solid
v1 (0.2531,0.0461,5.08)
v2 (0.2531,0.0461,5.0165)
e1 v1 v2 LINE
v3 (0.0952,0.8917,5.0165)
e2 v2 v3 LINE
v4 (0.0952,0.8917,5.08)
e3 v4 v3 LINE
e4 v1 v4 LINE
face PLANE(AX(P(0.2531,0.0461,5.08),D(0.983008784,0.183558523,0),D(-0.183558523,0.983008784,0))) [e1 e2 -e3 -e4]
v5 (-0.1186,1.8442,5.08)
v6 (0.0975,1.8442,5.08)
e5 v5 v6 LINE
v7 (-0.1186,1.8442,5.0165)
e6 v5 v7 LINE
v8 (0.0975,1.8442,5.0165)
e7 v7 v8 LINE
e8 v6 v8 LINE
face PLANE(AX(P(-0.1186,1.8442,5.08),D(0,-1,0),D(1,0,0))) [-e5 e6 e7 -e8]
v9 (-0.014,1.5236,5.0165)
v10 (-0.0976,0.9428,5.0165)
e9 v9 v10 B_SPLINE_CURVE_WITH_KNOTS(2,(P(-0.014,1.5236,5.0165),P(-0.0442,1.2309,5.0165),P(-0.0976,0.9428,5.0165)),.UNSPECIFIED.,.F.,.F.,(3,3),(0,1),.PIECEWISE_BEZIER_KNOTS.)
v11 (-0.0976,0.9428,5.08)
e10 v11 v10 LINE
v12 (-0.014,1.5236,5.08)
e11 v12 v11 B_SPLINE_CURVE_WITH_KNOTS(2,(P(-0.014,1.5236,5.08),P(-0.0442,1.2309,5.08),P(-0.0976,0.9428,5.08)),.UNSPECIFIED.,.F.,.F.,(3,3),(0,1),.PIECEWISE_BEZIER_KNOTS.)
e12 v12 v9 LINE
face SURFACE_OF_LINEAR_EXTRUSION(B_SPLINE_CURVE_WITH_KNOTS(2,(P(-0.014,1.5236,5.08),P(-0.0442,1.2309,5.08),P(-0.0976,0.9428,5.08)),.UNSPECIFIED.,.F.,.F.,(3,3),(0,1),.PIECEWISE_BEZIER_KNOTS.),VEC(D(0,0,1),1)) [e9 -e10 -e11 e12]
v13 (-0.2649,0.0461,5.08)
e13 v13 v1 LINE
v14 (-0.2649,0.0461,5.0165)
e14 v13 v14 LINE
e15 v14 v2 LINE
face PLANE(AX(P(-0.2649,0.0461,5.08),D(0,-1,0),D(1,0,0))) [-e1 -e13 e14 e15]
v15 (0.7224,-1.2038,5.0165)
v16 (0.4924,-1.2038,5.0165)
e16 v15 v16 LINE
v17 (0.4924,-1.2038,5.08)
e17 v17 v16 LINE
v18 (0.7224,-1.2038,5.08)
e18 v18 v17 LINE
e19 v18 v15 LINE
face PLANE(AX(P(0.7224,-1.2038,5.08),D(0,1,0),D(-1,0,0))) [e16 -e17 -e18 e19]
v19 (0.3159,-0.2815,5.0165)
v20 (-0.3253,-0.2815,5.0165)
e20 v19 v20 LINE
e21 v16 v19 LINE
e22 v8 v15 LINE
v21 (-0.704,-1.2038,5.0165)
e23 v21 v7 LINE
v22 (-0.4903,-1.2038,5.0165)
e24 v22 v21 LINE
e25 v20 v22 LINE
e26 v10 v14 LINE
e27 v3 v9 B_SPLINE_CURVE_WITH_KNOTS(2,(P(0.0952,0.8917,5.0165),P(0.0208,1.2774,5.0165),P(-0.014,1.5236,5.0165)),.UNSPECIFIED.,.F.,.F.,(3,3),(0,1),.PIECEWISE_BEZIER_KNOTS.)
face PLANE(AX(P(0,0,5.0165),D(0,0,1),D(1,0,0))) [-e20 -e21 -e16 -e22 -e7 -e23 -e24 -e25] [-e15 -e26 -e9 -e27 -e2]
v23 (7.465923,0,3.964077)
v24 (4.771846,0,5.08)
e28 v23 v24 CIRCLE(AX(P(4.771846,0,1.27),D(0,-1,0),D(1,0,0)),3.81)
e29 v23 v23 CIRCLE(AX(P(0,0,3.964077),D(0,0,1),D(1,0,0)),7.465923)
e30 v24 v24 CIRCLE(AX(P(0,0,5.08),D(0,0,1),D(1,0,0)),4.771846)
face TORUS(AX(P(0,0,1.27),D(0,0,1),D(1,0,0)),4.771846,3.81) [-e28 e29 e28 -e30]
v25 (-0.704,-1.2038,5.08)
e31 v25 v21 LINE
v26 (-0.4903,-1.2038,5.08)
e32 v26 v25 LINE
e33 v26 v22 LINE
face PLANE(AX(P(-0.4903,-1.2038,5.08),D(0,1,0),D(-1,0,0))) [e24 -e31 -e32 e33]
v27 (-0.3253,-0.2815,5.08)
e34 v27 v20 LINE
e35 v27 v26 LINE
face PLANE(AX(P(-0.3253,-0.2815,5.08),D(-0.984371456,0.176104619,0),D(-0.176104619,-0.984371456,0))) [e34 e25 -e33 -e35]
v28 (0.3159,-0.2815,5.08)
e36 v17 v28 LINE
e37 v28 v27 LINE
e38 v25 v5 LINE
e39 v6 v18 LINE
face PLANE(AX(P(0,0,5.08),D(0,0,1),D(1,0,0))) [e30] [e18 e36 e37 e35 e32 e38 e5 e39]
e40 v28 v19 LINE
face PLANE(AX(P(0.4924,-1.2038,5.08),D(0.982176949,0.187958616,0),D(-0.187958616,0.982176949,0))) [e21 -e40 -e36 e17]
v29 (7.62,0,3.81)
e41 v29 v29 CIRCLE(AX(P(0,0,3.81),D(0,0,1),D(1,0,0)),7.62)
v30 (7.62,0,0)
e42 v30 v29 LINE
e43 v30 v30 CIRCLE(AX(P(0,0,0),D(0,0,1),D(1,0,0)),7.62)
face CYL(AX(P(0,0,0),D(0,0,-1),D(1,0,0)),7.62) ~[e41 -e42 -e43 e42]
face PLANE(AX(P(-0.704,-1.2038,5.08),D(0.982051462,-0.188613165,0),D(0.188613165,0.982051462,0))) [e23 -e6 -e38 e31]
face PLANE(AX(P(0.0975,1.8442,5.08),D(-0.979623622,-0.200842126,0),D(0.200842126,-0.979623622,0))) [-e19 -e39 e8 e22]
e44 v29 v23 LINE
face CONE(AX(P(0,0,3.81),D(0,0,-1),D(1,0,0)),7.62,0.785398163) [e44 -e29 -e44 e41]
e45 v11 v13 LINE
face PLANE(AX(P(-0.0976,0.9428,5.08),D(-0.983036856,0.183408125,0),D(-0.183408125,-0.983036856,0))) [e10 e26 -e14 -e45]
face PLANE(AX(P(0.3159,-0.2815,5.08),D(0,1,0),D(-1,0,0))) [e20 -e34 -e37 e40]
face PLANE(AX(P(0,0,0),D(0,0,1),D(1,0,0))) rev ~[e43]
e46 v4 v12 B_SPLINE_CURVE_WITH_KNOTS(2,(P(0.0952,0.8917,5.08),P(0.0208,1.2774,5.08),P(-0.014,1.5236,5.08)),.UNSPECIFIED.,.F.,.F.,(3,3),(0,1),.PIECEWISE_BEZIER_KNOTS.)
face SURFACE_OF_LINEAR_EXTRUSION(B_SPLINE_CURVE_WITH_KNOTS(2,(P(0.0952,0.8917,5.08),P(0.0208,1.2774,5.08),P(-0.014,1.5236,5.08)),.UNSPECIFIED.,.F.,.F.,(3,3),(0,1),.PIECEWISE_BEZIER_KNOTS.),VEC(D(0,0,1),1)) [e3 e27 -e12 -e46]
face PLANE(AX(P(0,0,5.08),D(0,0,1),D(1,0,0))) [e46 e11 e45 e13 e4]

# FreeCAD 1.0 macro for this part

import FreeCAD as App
import Part
import Sketcher
Q = App.Units.Quantity


def edges_at(feature, points):
    """Names of the edges that pass closest to the given points."""
    edges = feature.Shape.Edges
    near = lambda p: min(range(len(edges)), key=lambda i: edges[i].distToShape(Part.Vertex(*p))[0])
    return sorted({f"Edge{near(p) + 1}" for p in points})

doc = App.newDocument("Part")
body = doc.addObject("PartDesign::Body", "Body")

sketch1 = body.newObject("Sketcher::SketchObject", "Sketch")
sketch1.AttachmentSupport = (doc.getObject("XY_Plane"), [""])
sketch1.MapMode = "FlatFace"
sketch1.addGeometry(Part.Circle(App.Vector(0, 0, 0), App.Vector(0, 0, 1), 7.62), False)
sketch1.addConstraint([
    Sketcher.Constraint("Coincident", 0, 3, -1, 1),
    Sketcher.Constraint("Diameter", 0, Q("0.6 in")),
])
pad1 = body.newObject("PartDesign::Pad", "Pad")
pad1.Profile = sketch1
pad1.Length = Q("0.2 in")
doc.recompute()

chamfer = body.newObject("PartDesign::Chamfer", "Chamfer")
chamfer.Base = (pad1, edges_at(pad1, [(-7.62, 0, 5.08)]))
chamfer.Size = Q("0.05 in")
doc.recompute()

fillet = body.newObject("PartDesign::Fillet", "Fillet")
fillet.Base = (chamfer, edges_at(chamfer, [(-6.35, 0, 5.08)]))
fillet.Radius = Q("0.15 in")

sketch2 = body.newObject("Sketcher::SketchObject", "Sketch001")
sketch2.AttachmentSupport = (doc.getObject("XY_Plane"), [""])
sketch2.MapMode = "FlatFace"
sketch2.AttachmentOffset = App.Placement(App.Vector(0, 0, 0.2 * 25.4), App.Rotation())
sketch2.addGeometry([
    Part.LineSegment(App.Vector(-0.1186, 1.8442, 0), App.Vector(-0.704, -1.2038, 0)),
    Part.LineSegment(App.Vector(-0.704, -1.2038, 0), App.Vector(-0.4903, -1.2038, 0)),
    Part.LineSegment(App.Vector(-0.4903, -1.2038, 0), App.Vector(-0.3253, -0.2815, 0)),
    Part.LineSegment(App.Vector(-0.3253, -0.2815, 0), App.Vector(0.3159, -0.2815, 0)),
    Part.LineSegment(App.Vector(0.3159, -0.2815, 0), App.Vector(0.4924, -1.2038, 0)),
    Part.LineSegment(App.Vector(0.4924, -1.2038, 0), App.Vector(0.7224, -1.2038, 0)),
    Part.LineSegment(App.Vector(0.7224, -1.2038, 0), App.Vector(0.0975, 1.8442, 0)),
    Part.LineSegment(App.Vector(0.0975, 1.8442, 0), App.Vector(-0.1186, 1.8442, 0)),
    Part.LineSegment(App.Vector(0.2531, 0.0461, 0), App.Vector(-0.2649, 0.0461, 0)),
    Part.LineSegment(App.Vector(-0.2649, 0.0461, 0), App.Vector(-0.0976, 0.9428, 0)),
    Part.BSplineCurve([App.Vector(-0.014, 1.5236, 0), App.Vector(-0.0442, 1.2309, 0), App.Vector(-0.0976, 0.9428, 0)], [3, 3], [0, 1], False, 2, [1, 1, 1], False),
    Part.BSplineCurve([App.Vector(0.0952, 0.8917, 0), App.Vector(0.0208, 1.2774, 0), App.Vector(-0.014, 1.5236, 0)], [3, 3], [0, 1], False, 2, [1, 1, 1], False),
    Part.LineSegment(App.Vector(0.0952, 0.8917, 0), App.Vector(0.2531, 0.0461, 0)),
], False)
sketch2.addConstraint([
    Sketcher.Constraint("Block", 10),
    Sketcher.Constraint("Block", 11),
    Sketcher.Constraint("Coincident", 0, 2, 1, 1),
    Sketcher.Constraint("Coincident", 1, 2, 2, 1),
    Sketcher.Constraint("Coincident", 2, 2, 3, 1),
    Sketcher.Constraint("Coincident", 3, 2, 4, 1),
    Sketcher.Constraint("Coincident", 4, 2, 5, 1),
    Sketcher.Constraint("Coincident", 5, 2, 6, 1),
    Sketcher.Constraint("Coincident", 6, 2, 7, 1),
    Sketcher.Constraint("Coincident", 7, 2, 0, 1),
    Sketcher.Constraint("Coincident", 8, 2, 9, 1),
    Sketcher.Constraint("Coincident", 9, 2, 10, 2),
    Sketcher.Constraint("Coincident", 11, 1, 12, 1),
    Sketcher.Constraint("Coincident", 12, 2, 8, 1),
    Sketcher.Constraint("Horizontal", 1),
    Sketcher.Constraint("Horizontal", 3),
    Sketcher.Constraint("Horizontal", 5),
    Sketcher.Constraint("Horizontal", 7),
    Sketcher.Constraint("Horizontal", 8),
    Sketcher.Constraint("Horizontal", 1, 2, 4, 2),
    Sketcher.Constraint("DistanceY", 4, 2, 6, 2, Q("0.12 in")),
    Sketcher.Constraint("DistanceX", 7, 2, 7, 1, Q("0.0085 in")),
    Sketcher.Constraint("DistanceX", 8, 2, 8, 1, Q("0.0204 in")),
    Sketcher.Constraint("DistanceX", 3, 2, 5, 2, Q("0.016 in")),
    Sketcher.Constraint("Distance", 0, Q("0.1222 in")),
    Sketcher.Constraint("Distance", 6, Q("0.1225 in")),
    Sketcher.Constraint("DistanceX", 1, 1, 1, 2, Q("0.2137 mm")),
    Sketcher.Constraint("DistanceX", 3, 1, 3, 2, Q("0.6412 mm")),
    Sketcher.Constraint("DistanceX", 5, 1, 5, 2, Q("0.23 mm")),
    Sketcher.Constraint("DistanceY", 0, 2, -1, 1, Q("0.0474 in")),
    Sketcher.Constraint("DistanceX", 1, 2, -1, 1, Q("0.0193 in")),
    Sketcher.Constraint("DistanceY", 1, 2, 2, 2, Q("0.0363 in")),
    Sketcher.Constraint("DistanceY", 2, 2, 8, 2, Q("0.0129 in")),
    Sketcher.Constraint("DistanceX", 9, 2, 12, 2, Q("0.0138 in")),
])
pocket1 = body.newObject("PartDesign::Pocket", "Pocket")
pocket1.Profile = sketch2
pocket1.Length = Q("0.0025 in")

doc.recompute()
